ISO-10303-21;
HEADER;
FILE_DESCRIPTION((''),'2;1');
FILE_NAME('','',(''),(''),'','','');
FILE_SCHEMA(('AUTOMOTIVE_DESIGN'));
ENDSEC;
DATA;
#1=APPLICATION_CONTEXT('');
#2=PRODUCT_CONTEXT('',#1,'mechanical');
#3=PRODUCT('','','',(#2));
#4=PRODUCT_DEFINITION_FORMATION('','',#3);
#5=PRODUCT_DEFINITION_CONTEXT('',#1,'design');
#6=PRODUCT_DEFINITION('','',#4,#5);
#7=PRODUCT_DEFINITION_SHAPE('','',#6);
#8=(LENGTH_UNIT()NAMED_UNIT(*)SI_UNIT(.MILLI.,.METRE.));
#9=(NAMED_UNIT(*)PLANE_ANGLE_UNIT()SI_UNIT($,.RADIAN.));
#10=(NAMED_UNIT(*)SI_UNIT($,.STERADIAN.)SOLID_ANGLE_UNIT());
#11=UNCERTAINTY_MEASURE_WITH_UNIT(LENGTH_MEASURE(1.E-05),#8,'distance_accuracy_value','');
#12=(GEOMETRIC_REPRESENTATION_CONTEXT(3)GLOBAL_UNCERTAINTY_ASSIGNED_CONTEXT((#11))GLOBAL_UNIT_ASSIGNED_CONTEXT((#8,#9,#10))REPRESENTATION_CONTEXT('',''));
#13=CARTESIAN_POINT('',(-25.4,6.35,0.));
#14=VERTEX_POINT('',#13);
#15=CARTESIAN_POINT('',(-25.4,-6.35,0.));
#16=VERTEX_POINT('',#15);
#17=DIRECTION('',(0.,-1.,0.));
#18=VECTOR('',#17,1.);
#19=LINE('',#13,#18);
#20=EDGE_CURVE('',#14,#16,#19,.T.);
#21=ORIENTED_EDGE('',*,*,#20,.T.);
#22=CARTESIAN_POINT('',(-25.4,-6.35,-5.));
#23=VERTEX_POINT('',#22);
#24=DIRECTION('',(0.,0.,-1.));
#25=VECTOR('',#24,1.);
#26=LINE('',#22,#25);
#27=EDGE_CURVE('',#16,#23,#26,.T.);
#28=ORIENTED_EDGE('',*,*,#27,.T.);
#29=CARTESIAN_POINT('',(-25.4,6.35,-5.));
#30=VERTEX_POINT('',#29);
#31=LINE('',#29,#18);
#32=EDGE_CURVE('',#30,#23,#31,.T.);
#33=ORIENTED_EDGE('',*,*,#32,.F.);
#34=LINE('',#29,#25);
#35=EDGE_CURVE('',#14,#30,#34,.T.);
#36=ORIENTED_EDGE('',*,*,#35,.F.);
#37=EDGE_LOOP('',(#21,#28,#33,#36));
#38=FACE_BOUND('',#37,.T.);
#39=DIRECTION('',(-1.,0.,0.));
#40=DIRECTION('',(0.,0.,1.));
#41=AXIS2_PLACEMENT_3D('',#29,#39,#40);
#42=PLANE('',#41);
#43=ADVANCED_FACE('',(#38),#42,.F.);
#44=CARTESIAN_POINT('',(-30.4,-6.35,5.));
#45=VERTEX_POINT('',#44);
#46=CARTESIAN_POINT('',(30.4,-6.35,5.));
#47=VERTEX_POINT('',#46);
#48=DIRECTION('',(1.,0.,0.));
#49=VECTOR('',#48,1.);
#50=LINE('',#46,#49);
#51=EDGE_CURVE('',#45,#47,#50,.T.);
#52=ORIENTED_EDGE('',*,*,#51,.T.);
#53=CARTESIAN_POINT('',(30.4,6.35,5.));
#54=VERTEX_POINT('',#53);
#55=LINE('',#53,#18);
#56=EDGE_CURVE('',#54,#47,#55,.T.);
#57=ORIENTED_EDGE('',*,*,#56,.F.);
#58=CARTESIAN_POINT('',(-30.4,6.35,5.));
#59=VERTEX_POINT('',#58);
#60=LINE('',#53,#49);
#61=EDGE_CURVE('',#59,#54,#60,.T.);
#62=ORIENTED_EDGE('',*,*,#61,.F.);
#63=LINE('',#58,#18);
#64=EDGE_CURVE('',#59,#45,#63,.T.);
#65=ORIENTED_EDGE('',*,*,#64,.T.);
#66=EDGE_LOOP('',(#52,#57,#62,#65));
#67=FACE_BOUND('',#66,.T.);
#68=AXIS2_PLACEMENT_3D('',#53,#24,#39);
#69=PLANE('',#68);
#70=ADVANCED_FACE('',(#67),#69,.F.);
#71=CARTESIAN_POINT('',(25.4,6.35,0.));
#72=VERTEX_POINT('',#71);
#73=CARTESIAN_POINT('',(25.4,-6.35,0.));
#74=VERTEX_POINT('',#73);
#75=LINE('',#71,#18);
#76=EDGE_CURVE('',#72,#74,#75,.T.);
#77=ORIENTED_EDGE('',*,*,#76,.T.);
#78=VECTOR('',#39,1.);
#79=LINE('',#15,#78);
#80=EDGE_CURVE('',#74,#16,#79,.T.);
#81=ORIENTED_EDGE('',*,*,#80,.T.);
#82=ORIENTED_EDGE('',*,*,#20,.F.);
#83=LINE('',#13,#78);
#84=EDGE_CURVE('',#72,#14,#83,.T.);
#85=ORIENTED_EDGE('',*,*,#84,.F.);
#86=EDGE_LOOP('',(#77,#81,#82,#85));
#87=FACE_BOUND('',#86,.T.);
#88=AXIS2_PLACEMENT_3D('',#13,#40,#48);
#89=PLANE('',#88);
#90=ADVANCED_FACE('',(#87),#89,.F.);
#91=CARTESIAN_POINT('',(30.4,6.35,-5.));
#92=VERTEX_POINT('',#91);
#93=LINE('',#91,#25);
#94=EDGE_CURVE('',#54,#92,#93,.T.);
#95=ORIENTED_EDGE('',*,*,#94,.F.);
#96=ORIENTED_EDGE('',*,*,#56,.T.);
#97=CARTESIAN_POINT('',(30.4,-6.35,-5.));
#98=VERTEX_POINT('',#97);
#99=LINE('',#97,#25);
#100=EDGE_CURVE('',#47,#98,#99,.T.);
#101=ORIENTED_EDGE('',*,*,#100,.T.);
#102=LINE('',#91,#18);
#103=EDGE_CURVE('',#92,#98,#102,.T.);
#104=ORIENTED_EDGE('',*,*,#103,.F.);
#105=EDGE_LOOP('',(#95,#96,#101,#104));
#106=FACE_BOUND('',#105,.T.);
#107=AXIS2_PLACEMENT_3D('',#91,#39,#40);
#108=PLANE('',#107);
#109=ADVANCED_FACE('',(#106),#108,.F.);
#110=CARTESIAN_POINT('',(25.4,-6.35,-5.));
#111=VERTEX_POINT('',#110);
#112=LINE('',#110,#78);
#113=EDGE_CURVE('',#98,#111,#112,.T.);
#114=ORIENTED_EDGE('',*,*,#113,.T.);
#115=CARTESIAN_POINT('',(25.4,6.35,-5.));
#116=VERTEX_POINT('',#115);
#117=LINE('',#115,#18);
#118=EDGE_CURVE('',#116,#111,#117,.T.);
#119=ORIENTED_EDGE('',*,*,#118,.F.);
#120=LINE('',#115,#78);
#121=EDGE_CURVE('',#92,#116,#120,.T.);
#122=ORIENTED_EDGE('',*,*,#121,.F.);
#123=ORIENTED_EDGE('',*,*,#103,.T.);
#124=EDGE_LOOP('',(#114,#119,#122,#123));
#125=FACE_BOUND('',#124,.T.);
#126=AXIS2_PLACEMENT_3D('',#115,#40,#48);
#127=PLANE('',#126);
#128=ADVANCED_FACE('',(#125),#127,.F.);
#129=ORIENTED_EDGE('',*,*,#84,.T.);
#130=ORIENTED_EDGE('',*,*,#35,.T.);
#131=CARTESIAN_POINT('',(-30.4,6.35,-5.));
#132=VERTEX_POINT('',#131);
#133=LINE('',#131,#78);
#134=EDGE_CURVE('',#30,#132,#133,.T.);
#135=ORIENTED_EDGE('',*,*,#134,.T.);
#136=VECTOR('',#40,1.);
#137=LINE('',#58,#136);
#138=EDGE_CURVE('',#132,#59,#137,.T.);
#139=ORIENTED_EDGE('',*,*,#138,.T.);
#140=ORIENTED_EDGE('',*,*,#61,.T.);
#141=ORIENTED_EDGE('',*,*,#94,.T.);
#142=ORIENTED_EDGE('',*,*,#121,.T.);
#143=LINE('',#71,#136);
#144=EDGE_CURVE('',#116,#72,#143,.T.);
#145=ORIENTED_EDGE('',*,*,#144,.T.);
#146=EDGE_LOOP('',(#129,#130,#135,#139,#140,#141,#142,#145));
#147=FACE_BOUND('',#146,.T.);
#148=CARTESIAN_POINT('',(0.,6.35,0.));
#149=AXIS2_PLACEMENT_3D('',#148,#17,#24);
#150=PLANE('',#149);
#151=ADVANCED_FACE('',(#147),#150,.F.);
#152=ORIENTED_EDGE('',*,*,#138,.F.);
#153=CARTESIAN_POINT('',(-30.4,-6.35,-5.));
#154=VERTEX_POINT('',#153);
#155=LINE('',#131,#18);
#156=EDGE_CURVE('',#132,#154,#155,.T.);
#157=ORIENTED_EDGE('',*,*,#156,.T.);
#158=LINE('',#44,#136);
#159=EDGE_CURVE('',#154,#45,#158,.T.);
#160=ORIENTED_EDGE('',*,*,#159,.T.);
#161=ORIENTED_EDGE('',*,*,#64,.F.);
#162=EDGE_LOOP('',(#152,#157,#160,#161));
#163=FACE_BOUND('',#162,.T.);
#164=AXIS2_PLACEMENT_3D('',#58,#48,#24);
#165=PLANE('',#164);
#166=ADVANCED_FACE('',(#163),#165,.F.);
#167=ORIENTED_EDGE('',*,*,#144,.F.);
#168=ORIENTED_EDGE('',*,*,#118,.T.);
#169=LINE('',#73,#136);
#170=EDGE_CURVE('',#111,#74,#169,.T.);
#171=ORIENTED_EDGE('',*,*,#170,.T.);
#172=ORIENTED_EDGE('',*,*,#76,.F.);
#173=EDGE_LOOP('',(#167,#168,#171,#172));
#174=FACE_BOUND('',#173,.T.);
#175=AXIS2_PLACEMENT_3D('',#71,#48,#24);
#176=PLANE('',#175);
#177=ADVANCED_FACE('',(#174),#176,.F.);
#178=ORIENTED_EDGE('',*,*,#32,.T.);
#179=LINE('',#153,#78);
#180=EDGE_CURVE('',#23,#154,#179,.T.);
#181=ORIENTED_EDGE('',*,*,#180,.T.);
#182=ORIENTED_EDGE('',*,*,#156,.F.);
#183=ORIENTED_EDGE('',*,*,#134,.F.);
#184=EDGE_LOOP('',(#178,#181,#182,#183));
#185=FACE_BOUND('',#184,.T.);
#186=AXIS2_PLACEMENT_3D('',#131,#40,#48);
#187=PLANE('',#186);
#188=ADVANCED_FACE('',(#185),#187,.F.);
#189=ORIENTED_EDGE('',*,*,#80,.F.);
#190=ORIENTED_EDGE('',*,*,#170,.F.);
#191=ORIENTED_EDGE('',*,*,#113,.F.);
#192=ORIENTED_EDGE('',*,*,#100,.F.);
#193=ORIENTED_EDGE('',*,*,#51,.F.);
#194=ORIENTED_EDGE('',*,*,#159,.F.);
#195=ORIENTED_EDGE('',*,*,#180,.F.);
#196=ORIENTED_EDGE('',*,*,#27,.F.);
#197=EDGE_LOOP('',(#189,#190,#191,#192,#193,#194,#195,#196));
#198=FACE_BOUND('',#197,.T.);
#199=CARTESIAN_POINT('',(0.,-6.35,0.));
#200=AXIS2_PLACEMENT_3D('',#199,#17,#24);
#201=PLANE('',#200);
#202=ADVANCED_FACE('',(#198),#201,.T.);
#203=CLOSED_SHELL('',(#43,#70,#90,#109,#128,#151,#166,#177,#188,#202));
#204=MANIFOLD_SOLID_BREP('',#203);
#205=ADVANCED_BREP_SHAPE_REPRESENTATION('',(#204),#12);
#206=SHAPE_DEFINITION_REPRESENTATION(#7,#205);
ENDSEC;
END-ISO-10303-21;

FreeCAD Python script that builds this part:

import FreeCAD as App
import Part
import Sketcher
from FreeCAD import Vector
Q = App.Units.Quantity

doc = App.newDocument("Part")
body = doc.addObject("PartDesign::Body", "Body")

# Sketch on XZ plane
sketch1 = body.newObject("Sketcher::SketchObject", "Sketch")
sketch1.AttachmentSupport = (doc.getObject("XZ_Plane"), [""])
sketch1.MapMode = "FlatFace"
sketch1.addGeometry(Part.LineSegment(Vector(-25, -5, 0), Vector(-30, -5, 0)), False)
sketch1.addGeometry(Part.LineSegment(Vector(-30, -5, 0), Vector(-30, 5, 0)), False)
sketch1.addGeometry(Part.LineSegment(Vector(-30, 5, 0), Vector(30, 5, 0)), False)
sketch1.addGeometry(Part.LineSegment(Vector(30, 5, 0), Vector(30, -5, 0)), False)
sketch1.addGeometry(Part.LineSegment(Vector(30, -5, 0), Vector(25, -5, 0)), False)
sketch1.addGeometry(Part.LineSegment(Vector(25, -5, 0), Vector(25, 0, 0)), False)
sketch1.addGeometry(Part.LineSegment(Vector(25, 0, 0), Vector(-25, 0, 0)), False)
sketch1.addGeometry(Part.LineSegment(Vector(-25, 0, 0), Vector(-25, -5, 0)), False)
sketch1.addConstraint(Sketcher.Constraint("Coincident", 0, 2, 1, 1))
sketch1.addConstraint(Sketcher.Constraint("Coincident", 1, 2, 2, 1))
sketch1.addConstraint(Sketcher.Constraint("Coincident", 2, 2, 3, 1))
sketch1.addConstraint(Sketcher.Constraint("Coincident", 3, 2, 4, 1))
sketch1.addConstraint(Sketcher.Constraint("Coincident", 4, 2, 5, 1))
sketch1.addConstraint(Sketcher.Constraint("Coincident", 5, 2, 6, 1))
sketch1.addConstraint(Sketcher.Constraint("Coincident", 6, 2, 7, 1))
sketch1.addConstraint(Sketcher.Constraint("Coincident", 7, 2, 0, 1))
sketch1.addConstraint(Sketcher.Constraint("Horizontal", 0))
sketch1.addConstraint(Sketcher.Constraint("Vertical", 1))
sketch1.addConstraint(Sketcher.Constraint("Horizontal", 2))
sketch1.addConstraint(Sketcher.Constraint("Vertical", 3))
sketch1.addConstraint(Sketcher.Constraint("Horizontal", 4))
sketch1.addConstraint(Sketcher.Constraint("Vertical", 5))
sketch1.addConstraint(Sketcher.Constraint("Horizontal", 6))
sketch1.addConstraint(Sketcher.Constraint("Vertical", 7))
sketch1.addConstraint(Sketcher.Constraint("Symmetric", 0, 2, 2, 2, -1, 1))
sketch1.addConstraint(Sketcher.Constraint("Symmetric", 5, 2, 6, 2, -1, 1))
sketch1.addConstraint(Sketcher.Constraint("Horizontal", 0, 2, 3, 2))
sketch1.addConstraint(Sketcher.Constraint("Equal", 4, 5))
sketch1.addConstraint(Sketcher.Constraint("DistanceX", 0, 2, 0, 1, Q("5 mm")))
sketch1.addConstraint(Sketcher.Constraint("DistanceX", 2, 1, 2, 2, Q("60.8 mm")))
pad1 = body.newObject("PartDesign::Pad", "Pad")
pad1.Profile = sketch1
pad1.Length = 12.7
pad1.Midplane = True

doc.recompute()
